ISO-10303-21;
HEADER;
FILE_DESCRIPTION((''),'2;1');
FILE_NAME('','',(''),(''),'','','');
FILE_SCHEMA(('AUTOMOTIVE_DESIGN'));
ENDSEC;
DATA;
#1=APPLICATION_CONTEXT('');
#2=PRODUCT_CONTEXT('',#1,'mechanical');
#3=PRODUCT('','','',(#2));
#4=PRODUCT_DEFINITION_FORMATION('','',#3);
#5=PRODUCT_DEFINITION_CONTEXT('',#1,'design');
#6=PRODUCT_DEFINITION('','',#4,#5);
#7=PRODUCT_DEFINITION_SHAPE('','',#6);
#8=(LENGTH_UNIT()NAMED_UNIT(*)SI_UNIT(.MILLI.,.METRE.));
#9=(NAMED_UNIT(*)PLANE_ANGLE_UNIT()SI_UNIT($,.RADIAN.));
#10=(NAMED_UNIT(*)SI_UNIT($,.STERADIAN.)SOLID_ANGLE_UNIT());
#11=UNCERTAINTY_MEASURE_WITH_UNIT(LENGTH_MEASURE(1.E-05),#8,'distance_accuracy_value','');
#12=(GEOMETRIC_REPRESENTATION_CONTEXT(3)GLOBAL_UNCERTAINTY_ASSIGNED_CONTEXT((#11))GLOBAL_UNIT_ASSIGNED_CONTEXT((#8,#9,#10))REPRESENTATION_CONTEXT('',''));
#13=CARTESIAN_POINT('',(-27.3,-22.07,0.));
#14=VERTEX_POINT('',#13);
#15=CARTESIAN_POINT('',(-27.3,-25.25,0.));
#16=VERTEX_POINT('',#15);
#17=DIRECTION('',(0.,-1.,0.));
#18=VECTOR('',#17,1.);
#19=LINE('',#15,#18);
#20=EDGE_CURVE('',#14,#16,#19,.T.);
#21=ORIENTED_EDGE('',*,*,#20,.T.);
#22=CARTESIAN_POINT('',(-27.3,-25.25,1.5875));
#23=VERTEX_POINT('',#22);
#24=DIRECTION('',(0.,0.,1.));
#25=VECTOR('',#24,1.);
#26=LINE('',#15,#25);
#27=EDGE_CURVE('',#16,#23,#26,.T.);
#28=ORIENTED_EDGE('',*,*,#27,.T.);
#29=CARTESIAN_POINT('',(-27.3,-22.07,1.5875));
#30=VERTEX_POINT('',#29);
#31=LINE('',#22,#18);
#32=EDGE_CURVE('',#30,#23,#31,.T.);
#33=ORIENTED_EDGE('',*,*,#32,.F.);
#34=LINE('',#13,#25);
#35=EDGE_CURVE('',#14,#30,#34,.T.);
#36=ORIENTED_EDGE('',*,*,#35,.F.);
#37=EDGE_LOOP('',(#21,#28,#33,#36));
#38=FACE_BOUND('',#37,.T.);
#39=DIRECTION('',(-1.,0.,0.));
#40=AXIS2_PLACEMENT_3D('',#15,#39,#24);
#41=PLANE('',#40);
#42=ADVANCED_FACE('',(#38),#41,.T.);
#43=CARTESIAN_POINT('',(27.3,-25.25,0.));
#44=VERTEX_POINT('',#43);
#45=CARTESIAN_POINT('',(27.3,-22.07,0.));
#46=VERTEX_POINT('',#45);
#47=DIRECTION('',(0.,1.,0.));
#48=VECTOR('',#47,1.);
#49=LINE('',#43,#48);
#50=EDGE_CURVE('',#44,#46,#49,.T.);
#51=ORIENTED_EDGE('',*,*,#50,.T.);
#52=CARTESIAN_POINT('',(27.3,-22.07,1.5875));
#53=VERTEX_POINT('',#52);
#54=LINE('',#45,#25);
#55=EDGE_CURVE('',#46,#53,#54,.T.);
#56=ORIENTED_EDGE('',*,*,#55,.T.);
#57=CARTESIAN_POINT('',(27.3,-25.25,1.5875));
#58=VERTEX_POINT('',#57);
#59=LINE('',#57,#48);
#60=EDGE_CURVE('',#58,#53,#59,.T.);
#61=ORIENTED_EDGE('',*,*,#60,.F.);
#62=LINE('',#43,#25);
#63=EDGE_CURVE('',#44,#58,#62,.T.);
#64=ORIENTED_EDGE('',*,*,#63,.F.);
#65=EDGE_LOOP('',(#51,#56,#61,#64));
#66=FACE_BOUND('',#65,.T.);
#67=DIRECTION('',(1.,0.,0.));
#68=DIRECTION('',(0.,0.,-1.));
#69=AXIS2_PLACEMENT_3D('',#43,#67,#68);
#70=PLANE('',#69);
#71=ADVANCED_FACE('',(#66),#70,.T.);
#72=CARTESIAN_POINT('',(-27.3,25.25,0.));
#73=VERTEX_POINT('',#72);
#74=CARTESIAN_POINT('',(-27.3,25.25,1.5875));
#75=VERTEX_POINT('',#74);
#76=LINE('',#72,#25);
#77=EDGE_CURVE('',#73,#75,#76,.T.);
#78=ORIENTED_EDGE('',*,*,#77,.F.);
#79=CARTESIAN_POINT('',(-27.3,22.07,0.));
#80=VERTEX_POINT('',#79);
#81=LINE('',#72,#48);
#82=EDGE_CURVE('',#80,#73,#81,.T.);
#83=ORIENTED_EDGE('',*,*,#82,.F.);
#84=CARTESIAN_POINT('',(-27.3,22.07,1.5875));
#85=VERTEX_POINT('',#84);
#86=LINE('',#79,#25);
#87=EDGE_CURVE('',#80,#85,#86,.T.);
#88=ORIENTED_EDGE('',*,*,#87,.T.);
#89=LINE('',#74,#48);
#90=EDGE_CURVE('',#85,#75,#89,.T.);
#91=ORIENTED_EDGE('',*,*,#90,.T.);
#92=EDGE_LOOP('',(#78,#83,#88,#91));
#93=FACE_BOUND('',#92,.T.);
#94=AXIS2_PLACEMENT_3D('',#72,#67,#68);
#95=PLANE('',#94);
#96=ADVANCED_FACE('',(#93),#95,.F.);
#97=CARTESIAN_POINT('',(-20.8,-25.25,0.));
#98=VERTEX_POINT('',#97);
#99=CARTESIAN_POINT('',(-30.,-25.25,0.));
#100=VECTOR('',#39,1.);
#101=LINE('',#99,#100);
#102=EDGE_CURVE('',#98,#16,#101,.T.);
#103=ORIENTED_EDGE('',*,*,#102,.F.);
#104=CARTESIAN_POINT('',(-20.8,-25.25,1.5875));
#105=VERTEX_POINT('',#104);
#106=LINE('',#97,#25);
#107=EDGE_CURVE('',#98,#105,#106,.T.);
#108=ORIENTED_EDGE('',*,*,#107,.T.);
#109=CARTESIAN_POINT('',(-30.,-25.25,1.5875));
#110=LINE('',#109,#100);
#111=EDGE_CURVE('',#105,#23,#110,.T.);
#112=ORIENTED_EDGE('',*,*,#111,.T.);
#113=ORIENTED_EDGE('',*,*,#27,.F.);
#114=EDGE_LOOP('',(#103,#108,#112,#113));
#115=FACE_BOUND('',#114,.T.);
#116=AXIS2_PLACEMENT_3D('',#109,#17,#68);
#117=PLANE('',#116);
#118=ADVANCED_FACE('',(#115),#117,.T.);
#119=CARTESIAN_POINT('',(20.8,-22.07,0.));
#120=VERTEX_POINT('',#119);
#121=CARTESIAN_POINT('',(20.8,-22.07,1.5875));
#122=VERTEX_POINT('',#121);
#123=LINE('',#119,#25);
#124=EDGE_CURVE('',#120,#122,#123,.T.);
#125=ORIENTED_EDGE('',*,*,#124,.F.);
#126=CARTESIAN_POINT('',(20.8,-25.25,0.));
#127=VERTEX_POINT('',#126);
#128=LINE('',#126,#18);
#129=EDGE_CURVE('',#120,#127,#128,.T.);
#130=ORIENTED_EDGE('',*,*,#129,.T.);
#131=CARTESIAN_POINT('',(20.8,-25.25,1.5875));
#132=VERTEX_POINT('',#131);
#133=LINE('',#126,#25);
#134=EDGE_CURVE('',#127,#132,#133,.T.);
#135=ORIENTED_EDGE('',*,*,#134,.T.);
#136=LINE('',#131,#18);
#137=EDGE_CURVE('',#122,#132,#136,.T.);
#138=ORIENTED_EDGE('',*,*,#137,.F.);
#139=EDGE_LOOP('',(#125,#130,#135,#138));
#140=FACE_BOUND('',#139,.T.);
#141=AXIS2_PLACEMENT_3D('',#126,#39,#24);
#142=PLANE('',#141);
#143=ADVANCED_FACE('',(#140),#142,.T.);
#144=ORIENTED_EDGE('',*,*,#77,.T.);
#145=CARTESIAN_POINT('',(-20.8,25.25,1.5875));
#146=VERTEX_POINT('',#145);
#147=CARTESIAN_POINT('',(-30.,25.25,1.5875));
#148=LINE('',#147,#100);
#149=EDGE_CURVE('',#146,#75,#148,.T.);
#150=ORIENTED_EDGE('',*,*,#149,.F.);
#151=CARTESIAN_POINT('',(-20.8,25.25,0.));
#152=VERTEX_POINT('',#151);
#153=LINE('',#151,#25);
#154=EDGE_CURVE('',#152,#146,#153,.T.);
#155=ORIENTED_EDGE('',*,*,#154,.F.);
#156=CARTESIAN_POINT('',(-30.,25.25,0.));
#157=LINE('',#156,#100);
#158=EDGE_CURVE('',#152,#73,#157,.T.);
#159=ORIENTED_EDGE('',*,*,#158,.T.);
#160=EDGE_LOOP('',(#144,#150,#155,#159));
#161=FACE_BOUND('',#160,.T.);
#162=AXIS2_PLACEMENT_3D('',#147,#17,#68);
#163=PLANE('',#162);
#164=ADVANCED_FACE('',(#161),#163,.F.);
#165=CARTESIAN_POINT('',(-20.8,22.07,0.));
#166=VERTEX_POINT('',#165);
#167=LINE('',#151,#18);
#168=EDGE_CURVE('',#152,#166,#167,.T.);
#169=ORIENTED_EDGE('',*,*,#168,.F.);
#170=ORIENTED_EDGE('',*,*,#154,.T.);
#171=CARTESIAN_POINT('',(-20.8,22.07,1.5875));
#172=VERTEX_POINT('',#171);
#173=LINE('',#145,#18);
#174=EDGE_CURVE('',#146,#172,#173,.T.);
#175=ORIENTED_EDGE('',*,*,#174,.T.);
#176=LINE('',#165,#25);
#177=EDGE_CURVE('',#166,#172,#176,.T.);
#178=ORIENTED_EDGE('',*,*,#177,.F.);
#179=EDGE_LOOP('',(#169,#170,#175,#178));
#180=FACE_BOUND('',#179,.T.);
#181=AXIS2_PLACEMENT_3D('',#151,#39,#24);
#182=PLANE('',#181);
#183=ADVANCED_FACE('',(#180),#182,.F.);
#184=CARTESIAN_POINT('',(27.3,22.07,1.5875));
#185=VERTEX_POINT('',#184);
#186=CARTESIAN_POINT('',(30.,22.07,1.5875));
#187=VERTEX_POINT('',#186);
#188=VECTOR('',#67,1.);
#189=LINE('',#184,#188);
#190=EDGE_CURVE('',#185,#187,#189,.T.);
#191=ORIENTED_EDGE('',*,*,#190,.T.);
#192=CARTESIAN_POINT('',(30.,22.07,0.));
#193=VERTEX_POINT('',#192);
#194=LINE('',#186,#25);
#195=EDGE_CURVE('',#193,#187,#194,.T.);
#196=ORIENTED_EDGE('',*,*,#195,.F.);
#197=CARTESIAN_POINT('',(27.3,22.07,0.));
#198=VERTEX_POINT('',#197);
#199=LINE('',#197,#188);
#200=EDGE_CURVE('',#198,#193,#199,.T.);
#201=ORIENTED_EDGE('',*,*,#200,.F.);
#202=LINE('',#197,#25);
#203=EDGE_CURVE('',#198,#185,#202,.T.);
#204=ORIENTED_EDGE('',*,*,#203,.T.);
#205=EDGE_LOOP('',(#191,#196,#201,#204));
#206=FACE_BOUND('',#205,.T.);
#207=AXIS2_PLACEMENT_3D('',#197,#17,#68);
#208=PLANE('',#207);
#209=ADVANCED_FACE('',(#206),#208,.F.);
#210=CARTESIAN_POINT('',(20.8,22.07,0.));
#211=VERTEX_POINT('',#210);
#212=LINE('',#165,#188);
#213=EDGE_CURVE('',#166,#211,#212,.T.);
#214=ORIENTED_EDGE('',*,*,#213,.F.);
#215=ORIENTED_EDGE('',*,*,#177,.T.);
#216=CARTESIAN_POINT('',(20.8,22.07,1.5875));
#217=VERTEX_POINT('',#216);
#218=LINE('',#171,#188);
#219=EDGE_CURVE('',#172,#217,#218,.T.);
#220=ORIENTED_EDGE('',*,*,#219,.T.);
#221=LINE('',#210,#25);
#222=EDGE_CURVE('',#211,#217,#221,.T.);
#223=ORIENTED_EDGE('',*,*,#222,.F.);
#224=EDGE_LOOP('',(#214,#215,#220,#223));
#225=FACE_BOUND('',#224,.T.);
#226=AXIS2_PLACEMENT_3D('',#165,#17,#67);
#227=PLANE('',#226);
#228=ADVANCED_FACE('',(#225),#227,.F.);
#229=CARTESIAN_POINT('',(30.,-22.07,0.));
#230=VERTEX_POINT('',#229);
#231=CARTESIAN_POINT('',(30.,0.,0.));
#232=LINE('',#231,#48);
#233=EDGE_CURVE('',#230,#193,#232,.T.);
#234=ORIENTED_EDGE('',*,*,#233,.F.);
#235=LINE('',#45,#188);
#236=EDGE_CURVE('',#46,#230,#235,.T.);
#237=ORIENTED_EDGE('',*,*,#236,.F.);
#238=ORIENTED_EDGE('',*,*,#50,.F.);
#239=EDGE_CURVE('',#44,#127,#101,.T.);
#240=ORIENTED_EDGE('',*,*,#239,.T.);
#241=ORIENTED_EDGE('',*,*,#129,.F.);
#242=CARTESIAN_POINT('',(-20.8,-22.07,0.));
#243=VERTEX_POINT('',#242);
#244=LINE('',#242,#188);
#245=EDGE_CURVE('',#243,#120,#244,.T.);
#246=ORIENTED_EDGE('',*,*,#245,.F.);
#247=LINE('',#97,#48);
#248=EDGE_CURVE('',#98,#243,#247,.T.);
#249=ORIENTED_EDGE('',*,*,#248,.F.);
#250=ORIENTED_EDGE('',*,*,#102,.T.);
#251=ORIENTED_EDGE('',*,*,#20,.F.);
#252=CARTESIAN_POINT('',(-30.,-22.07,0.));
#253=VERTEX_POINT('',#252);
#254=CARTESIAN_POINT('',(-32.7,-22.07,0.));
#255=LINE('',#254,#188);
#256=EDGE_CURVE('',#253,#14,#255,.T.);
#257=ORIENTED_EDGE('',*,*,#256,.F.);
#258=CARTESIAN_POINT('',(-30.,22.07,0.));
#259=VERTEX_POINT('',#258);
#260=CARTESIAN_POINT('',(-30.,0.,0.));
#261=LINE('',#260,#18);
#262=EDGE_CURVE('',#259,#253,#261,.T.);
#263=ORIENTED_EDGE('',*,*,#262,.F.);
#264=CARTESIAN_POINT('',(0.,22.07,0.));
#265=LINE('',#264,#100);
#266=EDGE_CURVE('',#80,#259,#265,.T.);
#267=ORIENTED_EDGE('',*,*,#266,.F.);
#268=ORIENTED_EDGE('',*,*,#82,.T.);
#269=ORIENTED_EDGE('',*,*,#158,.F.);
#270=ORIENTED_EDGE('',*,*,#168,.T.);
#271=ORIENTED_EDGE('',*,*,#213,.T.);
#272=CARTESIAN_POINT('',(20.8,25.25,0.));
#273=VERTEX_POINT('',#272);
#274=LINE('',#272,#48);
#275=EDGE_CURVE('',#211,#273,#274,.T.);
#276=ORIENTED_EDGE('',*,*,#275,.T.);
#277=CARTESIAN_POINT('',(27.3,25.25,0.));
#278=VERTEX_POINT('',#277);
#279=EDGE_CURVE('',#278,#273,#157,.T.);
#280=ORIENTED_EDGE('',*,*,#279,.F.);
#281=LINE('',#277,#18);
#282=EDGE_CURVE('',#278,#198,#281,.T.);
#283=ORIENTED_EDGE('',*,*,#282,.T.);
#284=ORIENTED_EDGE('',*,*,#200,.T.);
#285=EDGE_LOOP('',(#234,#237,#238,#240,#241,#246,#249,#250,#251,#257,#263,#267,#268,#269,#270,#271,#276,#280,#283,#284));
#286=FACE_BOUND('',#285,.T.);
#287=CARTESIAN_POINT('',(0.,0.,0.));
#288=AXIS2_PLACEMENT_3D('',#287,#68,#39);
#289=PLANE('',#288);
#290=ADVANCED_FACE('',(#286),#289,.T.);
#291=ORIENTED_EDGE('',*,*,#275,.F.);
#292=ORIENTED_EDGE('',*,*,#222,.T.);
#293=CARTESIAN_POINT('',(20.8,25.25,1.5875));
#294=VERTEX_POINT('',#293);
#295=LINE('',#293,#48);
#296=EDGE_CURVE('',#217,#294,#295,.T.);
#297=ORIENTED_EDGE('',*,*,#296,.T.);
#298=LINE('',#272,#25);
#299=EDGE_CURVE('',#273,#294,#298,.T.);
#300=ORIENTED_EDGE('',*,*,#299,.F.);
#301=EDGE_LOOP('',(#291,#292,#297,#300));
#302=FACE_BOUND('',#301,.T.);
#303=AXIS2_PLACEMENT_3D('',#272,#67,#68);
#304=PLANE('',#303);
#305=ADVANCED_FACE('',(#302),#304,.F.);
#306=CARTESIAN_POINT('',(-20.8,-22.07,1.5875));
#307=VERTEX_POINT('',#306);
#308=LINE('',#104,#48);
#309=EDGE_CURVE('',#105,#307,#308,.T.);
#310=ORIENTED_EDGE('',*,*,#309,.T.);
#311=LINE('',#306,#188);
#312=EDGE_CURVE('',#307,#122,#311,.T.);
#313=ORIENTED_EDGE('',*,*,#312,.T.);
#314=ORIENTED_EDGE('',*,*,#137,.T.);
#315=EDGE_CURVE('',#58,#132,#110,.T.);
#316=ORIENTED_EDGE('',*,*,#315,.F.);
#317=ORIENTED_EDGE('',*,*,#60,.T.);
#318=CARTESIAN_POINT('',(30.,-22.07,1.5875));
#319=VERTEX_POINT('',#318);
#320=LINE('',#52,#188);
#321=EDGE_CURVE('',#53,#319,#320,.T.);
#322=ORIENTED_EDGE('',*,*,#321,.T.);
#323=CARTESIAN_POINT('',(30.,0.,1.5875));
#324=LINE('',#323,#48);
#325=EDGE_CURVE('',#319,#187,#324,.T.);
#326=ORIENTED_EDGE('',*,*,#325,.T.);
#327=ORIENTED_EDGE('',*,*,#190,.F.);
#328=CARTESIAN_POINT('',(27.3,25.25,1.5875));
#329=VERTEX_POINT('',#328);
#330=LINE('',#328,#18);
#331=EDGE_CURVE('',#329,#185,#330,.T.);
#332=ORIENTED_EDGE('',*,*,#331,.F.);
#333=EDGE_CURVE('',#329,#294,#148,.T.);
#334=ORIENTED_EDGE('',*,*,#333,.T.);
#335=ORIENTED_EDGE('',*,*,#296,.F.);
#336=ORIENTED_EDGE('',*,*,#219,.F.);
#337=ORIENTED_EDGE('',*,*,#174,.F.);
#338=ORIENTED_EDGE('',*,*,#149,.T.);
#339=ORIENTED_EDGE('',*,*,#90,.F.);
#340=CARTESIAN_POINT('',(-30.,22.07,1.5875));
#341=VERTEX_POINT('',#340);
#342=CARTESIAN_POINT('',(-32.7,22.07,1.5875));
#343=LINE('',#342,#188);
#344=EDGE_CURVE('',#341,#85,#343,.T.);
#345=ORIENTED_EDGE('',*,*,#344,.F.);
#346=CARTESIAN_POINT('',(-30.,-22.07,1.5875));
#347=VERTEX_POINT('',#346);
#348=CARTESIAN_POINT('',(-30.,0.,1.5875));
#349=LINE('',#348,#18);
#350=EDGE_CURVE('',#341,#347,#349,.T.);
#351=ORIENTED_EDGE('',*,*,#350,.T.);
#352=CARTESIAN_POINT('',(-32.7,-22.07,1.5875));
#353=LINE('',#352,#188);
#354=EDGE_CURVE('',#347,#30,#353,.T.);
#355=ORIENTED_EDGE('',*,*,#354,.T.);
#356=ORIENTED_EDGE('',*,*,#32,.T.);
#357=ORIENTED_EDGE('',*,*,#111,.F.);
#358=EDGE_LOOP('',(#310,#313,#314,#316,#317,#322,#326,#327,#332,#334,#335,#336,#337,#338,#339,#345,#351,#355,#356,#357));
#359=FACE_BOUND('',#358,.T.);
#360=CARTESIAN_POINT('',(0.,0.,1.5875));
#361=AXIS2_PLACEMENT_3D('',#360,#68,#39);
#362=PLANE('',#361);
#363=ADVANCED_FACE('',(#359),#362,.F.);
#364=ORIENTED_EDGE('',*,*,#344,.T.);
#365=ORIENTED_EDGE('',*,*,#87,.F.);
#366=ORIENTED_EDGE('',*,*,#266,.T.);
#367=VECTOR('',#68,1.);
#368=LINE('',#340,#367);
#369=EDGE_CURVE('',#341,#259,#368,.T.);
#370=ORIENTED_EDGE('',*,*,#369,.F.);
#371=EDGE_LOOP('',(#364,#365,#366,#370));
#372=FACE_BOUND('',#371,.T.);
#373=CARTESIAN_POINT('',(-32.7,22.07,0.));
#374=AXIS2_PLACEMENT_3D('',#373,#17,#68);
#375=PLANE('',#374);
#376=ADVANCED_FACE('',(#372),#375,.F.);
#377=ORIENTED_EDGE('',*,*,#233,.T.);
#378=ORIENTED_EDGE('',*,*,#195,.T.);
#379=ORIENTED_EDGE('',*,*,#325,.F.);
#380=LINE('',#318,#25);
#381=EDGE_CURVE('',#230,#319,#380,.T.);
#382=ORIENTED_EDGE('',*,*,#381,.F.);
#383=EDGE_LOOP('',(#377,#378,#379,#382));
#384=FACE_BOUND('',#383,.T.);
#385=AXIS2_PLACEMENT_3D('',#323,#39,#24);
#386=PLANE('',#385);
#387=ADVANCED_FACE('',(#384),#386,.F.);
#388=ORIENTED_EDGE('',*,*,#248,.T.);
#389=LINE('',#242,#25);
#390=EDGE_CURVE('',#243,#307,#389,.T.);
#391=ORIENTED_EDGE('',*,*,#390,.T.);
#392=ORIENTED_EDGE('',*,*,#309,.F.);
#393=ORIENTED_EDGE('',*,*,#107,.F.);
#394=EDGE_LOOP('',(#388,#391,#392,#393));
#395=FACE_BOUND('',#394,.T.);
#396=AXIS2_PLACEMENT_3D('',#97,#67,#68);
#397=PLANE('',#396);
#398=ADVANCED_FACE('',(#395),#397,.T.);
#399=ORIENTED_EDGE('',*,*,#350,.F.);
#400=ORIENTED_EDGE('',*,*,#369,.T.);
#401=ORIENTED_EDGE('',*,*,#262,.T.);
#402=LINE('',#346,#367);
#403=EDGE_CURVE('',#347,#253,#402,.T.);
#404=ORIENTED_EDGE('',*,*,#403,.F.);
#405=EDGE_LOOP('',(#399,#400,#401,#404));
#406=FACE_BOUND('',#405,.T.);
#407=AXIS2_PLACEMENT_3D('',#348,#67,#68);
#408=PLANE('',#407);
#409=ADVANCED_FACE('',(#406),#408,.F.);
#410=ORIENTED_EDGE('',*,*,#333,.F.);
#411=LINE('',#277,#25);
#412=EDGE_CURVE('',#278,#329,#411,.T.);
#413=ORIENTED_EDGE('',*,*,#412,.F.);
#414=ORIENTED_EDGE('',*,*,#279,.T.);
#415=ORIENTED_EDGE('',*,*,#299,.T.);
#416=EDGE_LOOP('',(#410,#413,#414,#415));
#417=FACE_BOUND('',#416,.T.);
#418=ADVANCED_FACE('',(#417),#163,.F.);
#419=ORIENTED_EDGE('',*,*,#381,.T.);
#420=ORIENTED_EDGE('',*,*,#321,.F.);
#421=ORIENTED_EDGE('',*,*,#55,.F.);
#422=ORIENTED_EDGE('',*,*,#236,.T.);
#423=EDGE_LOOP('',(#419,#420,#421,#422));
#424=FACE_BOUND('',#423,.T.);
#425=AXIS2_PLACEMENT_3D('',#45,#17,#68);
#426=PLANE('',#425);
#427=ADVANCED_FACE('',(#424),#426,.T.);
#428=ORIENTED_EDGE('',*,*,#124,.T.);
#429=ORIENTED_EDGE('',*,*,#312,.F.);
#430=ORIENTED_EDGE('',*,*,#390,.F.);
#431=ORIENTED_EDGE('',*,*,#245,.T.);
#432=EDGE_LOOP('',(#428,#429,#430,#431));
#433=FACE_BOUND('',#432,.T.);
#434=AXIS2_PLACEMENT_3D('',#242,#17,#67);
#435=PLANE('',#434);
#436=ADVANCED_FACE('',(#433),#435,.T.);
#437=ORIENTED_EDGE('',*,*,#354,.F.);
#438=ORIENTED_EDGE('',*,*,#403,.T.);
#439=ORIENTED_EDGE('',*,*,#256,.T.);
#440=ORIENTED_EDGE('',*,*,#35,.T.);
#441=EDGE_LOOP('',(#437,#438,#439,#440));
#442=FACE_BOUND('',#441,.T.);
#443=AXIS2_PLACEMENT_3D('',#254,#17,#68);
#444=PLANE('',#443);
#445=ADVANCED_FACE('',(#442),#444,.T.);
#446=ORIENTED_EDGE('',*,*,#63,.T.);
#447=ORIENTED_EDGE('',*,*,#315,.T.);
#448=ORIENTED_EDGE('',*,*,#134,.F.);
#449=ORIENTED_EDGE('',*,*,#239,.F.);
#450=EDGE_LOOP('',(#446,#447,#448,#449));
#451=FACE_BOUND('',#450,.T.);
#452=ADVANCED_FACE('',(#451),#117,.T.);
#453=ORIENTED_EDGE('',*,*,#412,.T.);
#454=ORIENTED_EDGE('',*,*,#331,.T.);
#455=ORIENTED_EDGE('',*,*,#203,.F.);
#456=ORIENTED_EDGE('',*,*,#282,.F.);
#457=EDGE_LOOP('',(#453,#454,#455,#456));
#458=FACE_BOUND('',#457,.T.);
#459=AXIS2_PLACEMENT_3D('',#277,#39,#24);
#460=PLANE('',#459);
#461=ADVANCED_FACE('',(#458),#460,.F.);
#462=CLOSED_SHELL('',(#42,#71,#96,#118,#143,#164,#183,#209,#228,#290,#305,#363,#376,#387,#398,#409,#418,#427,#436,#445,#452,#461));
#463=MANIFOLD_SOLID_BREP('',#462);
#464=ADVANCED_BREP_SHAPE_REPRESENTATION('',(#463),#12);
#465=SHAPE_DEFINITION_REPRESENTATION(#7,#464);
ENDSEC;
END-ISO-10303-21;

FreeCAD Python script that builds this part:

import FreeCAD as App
import Part
import Sketcher
from FreeCAD import Vector

doc = App.newDocument("Part")
body = doc.addObject("PartDesign::Body", "Body")

# Sketch on XY plane
sketch1 = body.newObject("Sketcher::SketchObject", "Sketch")
sketch1.AttachmentSupport = (doc.getObject("XY_Plane"), [""])
sketch1.MapMode = "FlatFace"
sketch1.addGeometry(Part.LineSegment(Vector(-30, 25, 0), Vector(-30, 0, 0)), False)
sketch1.addGeometry(Part.LineSegment(Vector(-30, 0, 0), Vector(30, 0, 0)), False)
sketch1.addGeometry(Part.LineSegment(Vector(30, 0, 0), Vector(30, 25, 0)), False)
sketch1.addGeometry(Part.LineSegment(Vector(30, 25, 0), Vector(-30, 25, 0)), False)
sketch1.addConstraint(Sketcher.Constraint("Coincident", 0, 2, 1, 1))
sketch1.addConstraint(Sketcher.Constraint("Coincident", 1, 2, 2, 1))
sketch1.addConstraint(Sketcher.Constraint("Coincident", 2, 2, 3, 1))
sketch1.addConstraint(Sketcher.Constraint("Coincident", 3, 2, 0, 1))
sketch1.addConstraint(Sketcher.Constraint("Vertical", 0))
sketch1.addConstraint(Sketcher.Constraint("Horizontal", 1))
sketch1.addConstraint(Sketcher.Constraint("Vertical", 2))
sketch1.addConstraint(Sketcher.Constraint("Horizontal", 3))
sketch1.addConstraint(Sketcher.Constraint("Symmetric", 0, 2, 1, 2, -1, 1))
sketch1.addConstraint(Sketcher.Constraint("DistanceX", 1, 1, 1, 2, 60.0))
sketch1.addConstraint(Sketcher.Constraint("DistanceY", 0, 2, 0, 1, 25.25))
pad1 = body.newObject("PartDesign::Pad", "Pad")
pad1.Profile = sketch1
pad1.Length = 1.5875

# Sketch on XY plane
sketch2 = body.newObject("Sketcher::SketchObject", "Sketch001")
sketch2.AttachmentSupport = (doc.getObject("XY_Plane"), [""])
sketch2.MapMode = "FlatFace"
sketch2.AttachmentOffset = App.Placement(Vector(0, 0, 1.5875), App.Rotation())
sketch2.addGeometry(Part.LineSegment(Vector(-20.8, 25.2, 0), Vector(-20.8, 22.1, 0)), False)
sketch2.addGeometry(Part.LineSegment(Vector(-20.8, 22.1, 0), Vector(20.8, 22.1, 0)), False)
sketch2.addGeometry(Part.LineSegment(Vector(20.8, 22.1, 0), Vector(20.8, 25.2, 0)), False)
sketch2.addGeometry(Part.LineSegment(Vector(20.8, 25.2, 0), Vector(-20.8, 25.2, 0)), False)
sketch2.addGeometry(Part.LineSegment(Vector(27.3, 25.2, 0), Vector(27.3, 22.1, 0)), False)
sketch2.addGeometry(Part.LineSegment(Vector(27.3, 22.1, 0), Vector(32.7, 22.1, 0)), False)
sketch2.addGeometry(Part.LineSegment(Vector(32.7, 22.1, 0), Vector(32.7, 25.2, 0)), False)
sketch2.addGeometry(Part.LineSegment(Vector(32.7, 25.2, 0), Vector(27.3, 25.2, 0)), False)
sketch2.addGeometry(Part.LineSegment(Vector(-32.7, 25.2, 0), Vector(-32.7, 22.1, 0)), False)
sketch2.addGeometry(Part.LineSegment(Vector(-32.7, 22.1, 0), Vector(-27.3, 22.1, 0)), False)
sketch2.addGeometry(Part.LineSegment(Vector(-27.3, 22.1, 0), Vector(-27.3, 25.2, 0)), False)
sketch2.addGeometry(Part.LineSegment(Vector(-27.3, 25.2, 0), Vector(-32.7, 25.2, 0)), False)
sketch2.addConstraint(Sketcher.Constraint("Coincident", 0, 2, 1, 1))
sketch2.addConstraint(Sketcher.Constraint("Coincident", 1, 2, 2, 1))
sketch2.addConstraint(Sketcher.Constraint("Coincident", 2, 2, 3, 1))
sketch2.addConstraint(Sketcher.Constraint("Coincident", 3, 2, 0, 1))
sketch2.addConstraint(Sketcher.Constraint("Coincident", 4, 2, 5, 1))
sketch2.addConstraint(Sketcher.Constraint("Coincident", 5, 2, 6, 1))
sketch2.addConstraint(Sketcher.Constraint("Coincident", 6, 2, 7, 1))
sketch2.addConstraint(Sketcher.Constraint("Coincident", 7, 2, 4, 1))
sketch2.addConstraint(Sketcher.Constraint("Coincident", 8, 2, 9, 1))
sketch2.addConstraint(Sketcher.Constraint("Coincident", 9, 2, 10, 1))
sketch2.addConstraint(Sketcher.Constraint("Coincident", 10, 2, 11, 1))
sketch2.addConstraint(Sketcher.Constraint("Coincident", 11, 2, 8, 1))
sketch2.addConstraint(Sketcher.Constraint("Vertical", 0))
sketch2.addConstraint(Sketcher.Constraint("Horizontal", 1))
sketch2.addConstraint(Sketcher.Constraint("Vertical", 2))
sketch2.addConstraint(Sketcher.Constraint("Horizontal", 3))
sketch2.addConstraint(Sketcher.Constraint("Vertical", 4))
sketch2.addConstraint(Sketcher.Constraint("Horizontal", 5))
sketch2.addConstraint(Sketcher.Constraint("Vertical", 6))
sketch2.addConstraint(Sketcher.Constraint("Horizontal", 7))
sketch2.addConstraint(Sketcher.Constraint("Vertical", 8))
sketch2.addConstraint(Sketcher.Constraint("Horizontal", 9))
sketch2.addConstraint(Sketcher.Constraint("Vertical", 10))
sketch2.addConstraint(Sketcher.Constraint("Horizontal", 11))
sketch2.addConstraint(Sketcher.Constraint("Symmetric", 5, 2, 8, 2, -2))
sketch2.addConstraint(Sketcher.Constraint("Symmetric", 7, 2, 10, 2, -2))
sketch2.addConstraint(Sketcher.Constraint("Horizontal", 1, 2, 4, 2))
sketch2.addConstraint(Sketcher.Constraint("Horizontal", 3, 2, 6, 2))
sketch2.addConstraint(Sketcher.Constraint("DistanceX", 1, 1, 1, 2, 41.6))
sketch2.addConstraint(Sketcher.Constraint("DistanceX", 5, 1, 5, 2, 5.4))
sketch2.addConstraint(Sketcher.Constraint("DistanceX", 8, 2, 4, 2, 60.0))
sketch2.addConstraint(Sketcher.Constraint("DistanceY", 0, 2, 0, 1, 3.18))
sketch2.addConstraint(Sketcher.Constraint("DistanceX", 0, 2, -1, 1, 20.8))
sketch2.addConstraint(Sketcher.Constraint("DistanceY", -1, 1, 0, 2, 22.07))
pocket1 = body.newObject("PartDesign::Pocket", "Pocket")
pocket1.Profile = sketch2
pocket1.Length = 1.5875
doc.recompute()

mirrored = body.newObject("PartDesign::Mirrored", "Mirrored")
mirrored.Originals = [pad1, pocket1]
mirrored.MirrorPlane = (doc.getObject("XZ_Plane"), [""])
body.Tip = mirrored

doc.recompute()
